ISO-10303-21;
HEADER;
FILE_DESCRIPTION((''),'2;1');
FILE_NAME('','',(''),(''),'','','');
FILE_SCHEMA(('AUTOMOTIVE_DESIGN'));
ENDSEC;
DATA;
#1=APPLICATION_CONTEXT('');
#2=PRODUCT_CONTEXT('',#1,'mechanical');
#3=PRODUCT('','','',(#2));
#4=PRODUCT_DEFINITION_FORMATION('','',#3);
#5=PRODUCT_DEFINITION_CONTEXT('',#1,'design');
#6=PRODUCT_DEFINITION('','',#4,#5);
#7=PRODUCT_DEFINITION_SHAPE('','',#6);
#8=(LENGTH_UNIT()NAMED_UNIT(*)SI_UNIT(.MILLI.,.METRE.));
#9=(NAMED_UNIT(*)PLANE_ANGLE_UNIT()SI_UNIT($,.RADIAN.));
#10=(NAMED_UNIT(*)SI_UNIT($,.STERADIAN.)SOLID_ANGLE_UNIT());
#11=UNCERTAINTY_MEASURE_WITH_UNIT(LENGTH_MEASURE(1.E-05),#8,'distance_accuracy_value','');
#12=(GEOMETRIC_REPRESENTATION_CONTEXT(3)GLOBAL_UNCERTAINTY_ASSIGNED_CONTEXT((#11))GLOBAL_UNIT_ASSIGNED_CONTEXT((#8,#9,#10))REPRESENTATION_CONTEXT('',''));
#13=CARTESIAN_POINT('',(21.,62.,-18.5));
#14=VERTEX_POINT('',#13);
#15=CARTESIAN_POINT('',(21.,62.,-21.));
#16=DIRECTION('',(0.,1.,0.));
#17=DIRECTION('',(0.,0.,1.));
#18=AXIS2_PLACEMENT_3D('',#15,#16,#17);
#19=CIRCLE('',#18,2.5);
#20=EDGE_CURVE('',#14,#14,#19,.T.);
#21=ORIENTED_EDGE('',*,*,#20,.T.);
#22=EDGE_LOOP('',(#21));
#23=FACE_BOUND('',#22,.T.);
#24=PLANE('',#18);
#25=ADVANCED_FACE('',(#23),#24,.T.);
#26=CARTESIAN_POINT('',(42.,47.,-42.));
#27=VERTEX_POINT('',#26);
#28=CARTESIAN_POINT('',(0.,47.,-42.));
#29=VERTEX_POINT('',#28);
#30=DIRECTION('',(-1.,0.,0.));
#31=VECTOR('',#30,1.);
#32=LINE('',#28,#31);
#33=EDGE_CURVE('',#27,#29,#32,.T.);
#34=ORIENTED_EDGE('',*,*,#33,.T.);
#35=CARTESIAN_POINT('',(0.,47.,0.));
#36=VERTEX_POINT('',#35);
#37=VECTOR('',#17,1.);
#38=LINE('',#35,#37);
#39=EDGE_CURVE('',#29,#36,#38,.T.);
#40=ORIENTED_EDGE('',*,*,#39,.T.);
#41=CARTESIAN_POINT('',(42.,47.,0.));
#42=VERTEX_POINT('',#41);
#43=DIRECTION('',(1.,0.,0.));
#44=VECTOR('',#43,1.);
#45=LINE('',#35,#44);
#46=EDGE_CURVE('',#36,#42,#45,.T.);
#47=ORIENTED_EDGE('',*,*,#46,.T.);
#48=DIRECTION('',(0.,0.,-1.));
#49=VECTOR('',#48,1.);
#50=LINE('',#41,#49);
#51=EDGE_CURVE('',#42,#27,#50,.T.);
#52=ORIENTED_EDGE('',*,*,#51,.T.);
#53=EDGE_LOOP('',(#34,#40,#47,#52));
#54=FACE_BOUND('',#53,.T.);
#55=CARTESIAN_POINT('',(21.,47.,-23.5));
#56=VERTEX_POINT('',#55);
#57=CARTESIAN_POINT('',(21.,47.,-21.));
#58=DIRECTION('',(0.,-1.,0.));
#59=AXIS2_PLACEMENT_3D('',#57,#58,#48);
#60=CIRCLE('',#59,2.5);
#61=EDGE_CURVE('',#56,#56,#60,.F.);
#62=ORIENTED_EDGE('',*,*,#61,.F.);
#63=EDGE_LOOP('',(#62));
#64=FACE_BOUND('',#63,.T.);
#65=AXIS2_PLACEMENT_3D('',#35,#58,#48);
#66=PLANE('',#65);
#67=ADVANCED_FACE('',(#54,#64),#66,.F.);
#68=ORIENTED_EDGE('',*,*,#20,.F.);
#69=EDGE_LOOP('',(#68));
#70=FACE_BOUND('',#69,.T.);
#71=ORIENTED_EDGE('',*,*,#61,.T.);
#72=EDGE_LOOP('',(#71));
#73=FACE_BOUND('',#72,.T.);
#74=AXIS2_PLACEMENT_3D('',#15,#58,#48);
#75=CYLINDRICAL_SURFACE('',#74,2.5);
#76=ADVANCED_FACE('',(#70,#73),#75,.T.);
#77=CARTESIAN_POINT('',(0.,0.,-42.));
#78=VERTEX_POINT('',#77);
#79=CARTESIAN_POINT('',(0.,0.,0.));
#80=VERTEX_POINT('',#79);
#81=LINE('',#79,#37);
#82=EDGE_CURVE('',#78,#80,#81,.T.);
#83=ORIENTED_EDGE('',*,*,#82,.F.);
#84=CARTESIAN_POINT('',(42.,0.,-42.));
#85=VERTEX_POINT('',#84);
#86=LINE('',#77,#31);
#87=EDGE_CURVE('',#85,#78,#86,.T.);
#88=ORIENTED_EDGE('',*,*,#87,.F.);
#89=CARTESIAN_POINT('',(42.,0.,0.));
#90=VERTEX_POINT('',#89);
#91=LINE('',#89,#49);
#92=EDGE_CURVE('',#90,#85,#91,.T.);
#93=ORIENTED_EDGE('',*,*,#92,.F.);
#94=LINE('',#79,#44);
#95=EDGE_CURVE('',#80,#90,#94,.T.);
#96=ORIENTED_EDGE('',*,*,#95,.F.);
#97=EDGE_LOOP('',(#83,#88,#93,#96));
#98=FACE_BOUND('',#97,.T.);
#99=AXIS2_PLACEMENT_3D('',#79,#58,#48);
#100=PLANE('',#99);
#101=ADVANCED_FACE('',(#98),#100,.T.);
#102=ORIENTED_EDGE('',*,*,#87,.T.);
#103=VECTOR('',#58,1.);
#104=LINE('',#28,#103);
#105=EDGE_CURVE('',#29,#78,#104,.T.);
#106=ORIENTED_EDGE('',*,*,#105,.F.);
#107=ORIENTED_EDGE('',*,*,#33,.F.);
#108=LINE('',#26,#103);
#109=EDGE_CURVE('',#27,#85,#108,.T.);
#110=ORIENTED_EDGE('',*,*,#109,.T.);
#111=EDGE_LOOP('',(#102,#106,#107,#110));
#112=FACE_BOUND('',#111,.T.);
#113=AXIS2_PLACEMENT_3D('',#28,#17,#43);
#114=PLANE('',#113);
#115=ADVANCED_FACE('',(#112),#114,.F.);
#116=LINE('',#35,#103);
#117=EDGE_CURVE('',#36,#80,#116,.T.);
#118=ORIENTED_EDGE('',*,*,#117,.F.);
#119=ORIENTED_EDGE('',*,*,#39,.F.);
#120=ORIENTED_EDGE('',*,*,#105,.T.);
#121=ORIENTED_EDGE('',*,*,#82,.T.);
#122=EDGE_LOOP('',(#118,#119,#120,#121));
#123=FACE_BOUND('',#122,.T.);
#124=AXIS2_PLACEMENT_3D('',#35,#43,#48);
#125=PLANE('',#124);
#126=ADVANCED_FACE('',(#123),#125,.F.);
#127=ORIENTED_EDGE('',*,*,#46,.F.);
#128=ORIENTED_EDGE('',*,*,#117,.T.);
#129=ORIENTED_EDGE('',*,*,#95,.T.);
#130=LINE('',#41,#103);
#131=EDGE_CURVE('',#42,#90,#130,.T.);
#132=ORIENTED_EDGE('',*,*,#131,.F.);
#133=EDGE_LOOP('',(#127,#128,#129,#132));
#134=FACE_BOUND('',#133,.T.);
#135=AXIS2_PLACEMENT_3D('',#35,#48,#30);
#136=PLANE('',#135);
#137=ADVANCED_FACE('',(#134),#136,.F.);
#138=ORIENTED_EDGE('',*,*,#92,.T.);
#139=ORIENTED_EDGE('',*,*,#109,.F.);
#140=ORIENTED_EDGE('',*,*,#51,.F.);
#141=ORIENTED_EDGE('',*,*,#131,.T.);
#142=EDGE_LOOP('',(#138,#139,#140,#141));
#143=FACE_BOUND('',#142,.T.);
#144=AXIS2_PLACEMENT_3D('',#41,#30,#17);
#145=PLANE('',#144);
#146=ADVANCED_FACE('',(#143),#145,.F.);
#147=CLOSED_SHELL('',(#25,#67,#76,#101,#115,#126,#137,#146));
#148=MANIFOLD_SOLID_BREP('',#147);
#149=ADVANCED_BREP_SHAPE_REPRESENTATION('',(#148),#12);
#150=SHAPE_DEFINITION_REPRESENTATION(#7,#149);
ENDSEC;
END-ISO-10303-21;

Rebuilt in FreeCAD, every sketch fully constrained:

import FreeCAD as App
import Part
import Sketcher
from FreeCAD import Vector


def add_polygon(sketch, points):
    """Adds a closed chain of lines whose ends are joined by coincident constraints."""
    first, n = sketch.GeometryCount, len(points)
    for a, b in zip(points, points[1:] + points[:1]):
        sketch.addGeometry(Part.LineSegment(App.Vector(*a, 0), App.Vector(*b, 0)), False)
    for i in range(n):
        sketch.addConstraint(Sketcher.Constraint("Coincident", first + i, 2, first + (i + 1) % n, 1))

doc = App.newDocument("Part")
body = doc.addObject("PartDesign::Body", "Body")

# Sketch on XZ plane
sketch1 = body.newObject("Sketcher::SketchObject", "Sketch")
sketch1.AttachmentSupport = (doc.getObject("XZ_Plane"), [""])
sketch1.MapMode = "FlatFace"
add_polygon(sketch1, [(0, -42), (0, 0), (42, 0), (42, -42)])  # lines 0-3
sketch1.addConstraint(Sketcher.Constraint("Vertical", 0))
sketch1.addConstraint(Sketcher.Constraint("Horizontal", 1))
sketch1.addConstraint(Sketcher.Constraint("Vertical", 2))
sketch1.addConstraint(Sketcher.Constraint("Horizontal", 3))
sketch1.addConstraint(Sketcher.Constraint("Coincident", 0, 2, -1, 1))
sketch1.addConstraint(Sketcher.Constraint("Equal", 3, 0))
sketch1.addConstraint(Sketcher.Constraint("DistanceX", 1, 1, 1, 2, 42.0))
pad1 = body.newObject("PartDesign::Pad", "Pad")
pad1.Profile = sketch1
pad1.Length = 47
pad1.Reversed = True

# Sketch on XZ plane
sketch2 = body.newObject("Sketcher::SketchObject", "Sketch001")
sketch2.AttachmentSupport = (doc.getObject("XZ_Plane"), [""])
sketch2.MapMode = "FlatFace"
sketch2.AttachmentOffset = App.Placement(Vector(0, 0, -47), App.Rotation())
sketch2.addGeometry(Part.Circle(Vector(21, -21, 0), Vector(0, 0, 1), 2.5), False)
sketch2.addConstraint(Sketcher.Constraint("Diameter", 0, 5.0))
sketch2.addConstraint(Sketcher.Constraint("DistanceX", -1, 1, 0, 3, 21.0))
sketch2.addConstraint(Sketcher.Constraint("DistanceY", 0, 3, -1, 1, 21.0))
pad2 = body.newObject("PartDesign::Pad", "Pad001")
pad2.Profile = sketch2
pad2.Length = 15
pad2.Reversed = True

doc.recompute()
